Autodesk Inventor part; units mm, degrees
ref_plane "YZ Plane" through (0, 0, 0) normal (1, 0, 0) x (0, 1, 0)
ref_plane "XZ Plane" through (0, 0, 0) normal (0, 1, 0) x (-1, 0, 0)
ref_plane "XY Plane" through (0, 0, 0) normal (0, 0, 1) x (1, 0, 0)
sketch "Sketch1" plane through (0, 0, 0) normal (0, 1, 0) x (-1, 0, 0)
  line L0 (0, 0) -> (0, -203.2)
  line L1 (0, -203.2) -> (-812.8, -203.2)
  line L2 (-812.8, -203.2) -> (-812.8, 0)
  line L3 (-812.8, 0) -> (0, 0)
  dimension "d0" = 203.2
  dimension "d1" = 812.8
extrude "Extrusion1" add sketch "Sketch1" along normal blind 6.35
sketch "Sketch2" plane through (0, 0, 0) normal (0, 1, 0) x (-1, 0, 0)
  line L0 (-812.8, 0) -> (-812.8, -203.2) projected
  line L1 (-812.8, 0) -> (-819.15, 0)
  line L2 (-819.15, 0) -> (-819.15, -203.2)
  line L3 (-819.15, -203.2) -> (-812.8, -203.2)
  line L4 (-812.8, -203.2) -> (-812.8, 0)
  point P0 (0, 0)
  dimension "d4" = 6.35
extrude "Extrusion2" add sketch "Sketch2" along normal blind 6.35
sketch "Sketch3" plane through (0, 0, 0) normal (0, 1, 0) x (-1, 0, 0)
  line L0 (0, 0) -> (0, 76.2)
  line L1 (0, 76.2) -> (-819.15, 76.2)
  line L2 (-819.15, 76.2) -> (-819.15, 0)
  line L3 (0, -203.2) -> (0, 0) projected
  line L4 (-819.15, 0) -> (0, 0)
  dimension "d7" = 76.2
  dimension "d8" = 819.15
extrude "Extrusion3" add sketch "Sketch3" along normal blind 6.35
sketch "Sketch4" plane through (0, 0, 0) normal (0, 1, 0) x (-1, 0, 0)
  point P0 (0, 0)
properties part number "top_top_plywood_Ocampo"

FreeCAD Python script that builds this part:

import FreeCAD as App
import Part
import Sketcher
Q = App.Units.Quantity

doc = App.newDocument("Part")
body = doc.addObject("PartDesign::Body", "Body")

sketch1 = body.newObject("Sketcher::SketchObject", "Sketch")
sketch1.AttachmentSupport = (doc.getObject("XZ_Plane"), [""])
sketch1.MapMode = "FlatFace"
sketch1.addGeometry([
    Part.LineSegment(App.Vector(0, -203, 0), App.Vector(0, 0, 0)),
    Part.LineSegment(App.Vector(0, 0, 0), App.Vector(813, 0, 0)),
    Part.LineSegment(App.Vector(813, 0, 0), App.Vector(813, -203, 0)),
    Part.LineSegment(App.Vector(813, -203, 0), App.Vector(0, -203, 0)),
], False)
sketch1.addConstraint([
    Sketcher.Constraint("Coincident", 0, 2, 1, 1),
    Sketcher.Constraint("Coincident", 1, 2, 2, 1),
    Sketcher.Constraint("Coincident", 2, 2, 3, 1),
    Sketcher.Constraint("Coincident", 3, 2, 0, 1),
    Sketcher.Constraint("Vertical", 0),
    Sketcher.Constraint("Horizontal", 1),
    Sketcher.Constraint("Vertical", 2),
    Sketcher.Constraint("Horizontal", 3),
    Sketcher.Constraint("Coincident", 0, 2, -1, 1),
    Sketcher.Constraint("DistanceX", 1, 1, 1, 2, Q("32 in")),
    Sketcher.Constraint("DistanceY", 0, 1, 0, 2, Q("8 in")),
])
pad1 = body.newObject("PartDesign::Pad", "Pad")
pad1.Profile = sketch1
pad1.Length = Q("0.25 in")
pad1.Reversed = True

sketch2 = body.newObject("Sketcher::SketchObject", "Sketch001")
sketch2.AttachmentSupport = (doc.getObject("XZ_Plane"), [""])
sketch2.MapMode = "FlatFace"
sketch2.addGeometry([
    Part.LineSegment(App.Vector(813, -203, 0), App.Vector(813, 0, 0)),
    Part.LineSegment(App.Vector(813, 0, 0), App.Vector(819, 0, 0)),
    Part.LineSegment(App.Vector(819, 0, 0), App.Vector(819, -203, 0)),
    Part.LineSegment(App.Vector(819, -203, 0), App.Vector(813, -203, 0)),
], False)
sketch2.addConstraint([
    Sketcher.Constraint("Coincident", 0, 2, 1, 1),
    Sketcher.Constraint("Coincident", 1, 2, 2, 1),
    Sketcher.Constraint("Coincident", 2, 2, 3, 1),
    Sketcher.Constraint("Coincident", 3, 2, 0, 1),
    Sketcher.Constraint("Vertical", 0),
    Sketcher.Constraint("Horizontal", 1),
    Sketcher.Constraint("Vertical", 2),
    Sketcher.Constraint("Horizontal", 3),
    Sketcher.Constraint("PointOnObject", 0, 2, -1),
    Sketcher.Constraint("DistanceX", 1, 1, 1, 2, Q("0.25 in")),
    Sketcher.Constraint("DistanceY", 0, 1, 0, 2, Q("8 in")),
    Sketcher.Constraint("DistanceX", -1, 1, 0, 2, Q("32 in")),
])
pad2 = body.newObject("PartDesign::Pad", "Pad001")
pad2.Profile = sketch2
pad2.Length = Q("0.25 in")
pad2.Reversed = True

sketch3 = body.newObject("Sketcher::SketchObject", "Sketch002")
sketch3.AttachmentSupport = (doc.getObject("XZ_Plane"), [""])
sketch3.MapMode = "FlatFace"
sketch3.addGeometry([
    Part.LineSegment(App.Vector(819, 0, 0), App.Vector(0, 0, 0)),
    Part.LineSegment(App.Vector(0, 0, 0), App.Vector(0, 76, 0)),
    Part.LineSegment(App.Vector(0, 76, 0), App.Vector(819, 76, 0)),
    Part.LineSegment(App.Vector(819, 76, 0), App.Vector(819, 0, 0)),
], False)
sketch3.addConstraint([
    Sketcher.Constraint("Coincident", 0, 2, 1, 1),
    Sketcher.Constraint("Coincident", 1, 2, 2, 1),
    Sketcher.Constraint("Coincident", 2, 2, 3, 1),
    Sketcher.Constraint("Coincident", 3, 2, 0, 1),
    Sketcher.Constraint("Horizontal", 0),
    Sketcher.Constraint("Vertical", 1),
    Sketcher.Constraint("Horizontal", 2),
    Sketcher.Constraint("Vertical", 3),
    Sketcher.Constraint("Coincident", 0, 2, -1, 1),
    Sketcher.Constraint("DistanceY", 1, 1, 1, 2, Q("3 in")),
    Sketcher.Constraint("DistanceX", 0, 2, 0, 1, Q("32.25 in")),
])
pad3 = body.newObject("PartDesign::Pad", "Pad002")
pad3.Profile = sketch3
pad3.Length = Q("0.25 in")
pad3.Reversed = True

doc.recompute()
